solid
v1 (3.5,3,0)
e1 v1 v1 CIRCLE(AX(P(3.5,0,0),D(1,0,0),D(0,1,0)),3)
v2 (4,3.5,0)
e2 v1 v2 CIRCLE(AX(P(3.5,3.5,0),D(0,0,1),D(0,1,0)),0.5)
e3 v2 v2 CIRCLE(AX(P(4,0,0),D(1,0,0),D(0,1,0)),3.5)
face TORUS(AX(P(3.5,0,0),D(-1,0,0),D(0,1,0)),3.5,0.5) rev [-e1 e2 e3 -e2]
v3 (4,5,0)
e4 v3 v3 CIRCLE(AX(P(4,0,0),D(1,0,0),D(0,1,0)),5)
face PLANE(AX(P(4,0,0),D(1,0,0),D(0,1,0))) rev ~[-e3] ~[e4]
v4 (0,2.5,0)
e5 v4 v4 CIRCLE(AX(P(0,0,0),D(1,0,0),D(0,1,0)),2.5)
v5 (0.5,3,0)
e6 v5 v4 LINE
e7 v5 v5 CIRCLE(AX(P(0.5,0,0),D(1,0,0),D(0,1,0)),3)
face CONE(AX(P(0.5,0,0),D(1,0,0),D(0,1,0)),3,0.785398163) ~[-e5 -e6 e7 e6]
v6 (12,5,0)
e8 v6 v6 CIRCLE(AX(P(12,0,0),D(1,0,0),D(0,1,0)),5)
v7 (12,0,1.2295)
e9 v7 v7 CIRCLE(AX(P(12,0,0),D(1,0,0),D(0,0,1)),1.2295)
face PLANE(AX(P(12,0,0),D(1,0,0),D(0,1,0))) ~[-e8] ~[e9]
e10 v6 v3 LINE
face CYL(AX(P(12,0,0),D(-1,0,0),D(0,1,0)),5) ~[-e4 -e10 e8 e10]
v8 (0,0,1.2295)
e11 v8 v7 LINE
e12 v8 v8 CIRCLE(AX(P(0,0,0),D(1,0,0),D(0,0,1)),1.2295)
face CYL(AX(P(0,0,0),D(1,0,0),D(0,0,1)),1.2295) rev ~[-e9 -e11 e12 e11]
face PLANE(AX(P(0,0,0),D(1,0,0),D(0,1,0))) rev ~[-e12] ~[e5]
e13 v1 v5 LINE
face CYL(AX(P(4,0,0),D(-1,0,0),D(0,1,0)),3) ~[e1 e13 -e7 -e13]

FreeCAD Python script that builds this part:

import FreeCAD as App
import Part
import Sketcher

V = App.Vector


def edges_at(feature, points):
    """Names of the edges that pass closest to the given points."""
    edges = feature.Shape.Edges
    near = lambda p: min(range(len(edges)), key=lambda i: edges[i].distToShape(Part.Vertex(*p))[0])
    return sorted({f"Edge{near(p) + 1}" for p in points})

doc = App.newDocument("Part")
body = doc.addObject("PartDesign::Body", "Body")

sketch1 = body.newObject("Sketcher::SketchObject", "Sketch")
sketch1.AttachmentSupport = (doc.getObject("XY_Plane"), [""])
sketch1.MapMode = "FlatFace"
sketch1.addGeometry([
    Part.LineSegment(V(0, 3, 0), V(0, 0, 0)),
    Part.LineSegment(V(0, 0, 0), V(12, 0, 0)),
    Part.LineSegment(V(12, 0, 0), V(12, 5, 0)),
    Part.LineSegment(V(12, 5, 0), V(4, 5, 0)),
    Part.LineSegment(V(4, 5, 0), V(4, 3, 0)),
    Part.LineSegment(V(4, 3, 0), V(0, 3, 0)),
], False)
sketch1.addConstraint([
    Sketcher.Constraint("Coincident", 0, 2, 1, 1),
    Sketcher.Constraint("Coincident", 1, 2, 2, 1),
    Sketcher.Constraint("Coincident", 2, 2, 3, 1),
    Sketcher.Constraint("Coincident", 3, 2, 4, 1),
    Sketcher.Constraint("Coincident", 4, 2, 5, 1),
    Sketcher.Constraint("Coincident", 5, 2, 0, 1),
    Sketcher.Constraint("Vertical", 0),
    Sketcher.Constraint("Horizontal", 1),
    Sketcher.Constraint("Vertical", 2),
    Sketcher.Constraint("Horizontal", 3),
    Sketcher.Constraint("Vertical", 4),
    Sketcher.Constraint("Horizontal", 5),
    Sketcher.Constraint("Coincident", 0, 2, -1, 1),
    Sketcher.Constraint("DistanceX", 3, 2, 3, 1, 8.0),
    Sketcher.Constraint("DistanceX", 5, 2, 5, 1, 4.0),
    Sketcher.Constraint("DistanceY", 0, 2, 0, 1, 3.0),
    Sketcher.Constraint("DistanceY", 2, 1, 2, 2, 5.0),
])
revolution = body.newObject("PartDesign::Revolution", "Revolution")
revolution.Profile = sketch1
revolution.ReferenceAxis = (sketch1, ["H_Axis"])
revolution.Angle = 360
doc.recompute()

fillet = body.newObject("PartDesign::Fillet", "Fillet")
fillet.Base = (revolution, edges_at(revolution, [(4, -3, 0)]))
fillet.Radius = 0.5
doc.recompute()

chamfer = body.newObject("PartDesign::Chamfer", "Chamfer")
chamfer.Base = (fillet, edges_at(fillet, [(0, -3, 0)]))
chamfer.Size = 0.5

sketch2 = body.newObject("Sketcher::SketchObject", "Sketch001")
sketch2.AttachmentSupport = (doc.getObject("YZ_Plane"), [""])
sketch2.MapMode = "FlatFace"
sketch2.addGeometry(Part.Circle(V(0, 0, 0), V(0, 0, 1), 1.2), False)
sketch2.addConstraint([
    Sketcher.Constraint("Coincident", 0, 3, -1, 1),
    Sketcher.Constraint("Diameter", 0, 2.459),
])
doc.recompute()
hole = body.newObject("PartDesign::Hole", "Hole")
hole.Profile = sketch2
hole.ThreadType = "None"
hole.Diameter = 2.459
hole.DepthType = "ThroughAll"
hole.Reversed = True

doc.recompute()
